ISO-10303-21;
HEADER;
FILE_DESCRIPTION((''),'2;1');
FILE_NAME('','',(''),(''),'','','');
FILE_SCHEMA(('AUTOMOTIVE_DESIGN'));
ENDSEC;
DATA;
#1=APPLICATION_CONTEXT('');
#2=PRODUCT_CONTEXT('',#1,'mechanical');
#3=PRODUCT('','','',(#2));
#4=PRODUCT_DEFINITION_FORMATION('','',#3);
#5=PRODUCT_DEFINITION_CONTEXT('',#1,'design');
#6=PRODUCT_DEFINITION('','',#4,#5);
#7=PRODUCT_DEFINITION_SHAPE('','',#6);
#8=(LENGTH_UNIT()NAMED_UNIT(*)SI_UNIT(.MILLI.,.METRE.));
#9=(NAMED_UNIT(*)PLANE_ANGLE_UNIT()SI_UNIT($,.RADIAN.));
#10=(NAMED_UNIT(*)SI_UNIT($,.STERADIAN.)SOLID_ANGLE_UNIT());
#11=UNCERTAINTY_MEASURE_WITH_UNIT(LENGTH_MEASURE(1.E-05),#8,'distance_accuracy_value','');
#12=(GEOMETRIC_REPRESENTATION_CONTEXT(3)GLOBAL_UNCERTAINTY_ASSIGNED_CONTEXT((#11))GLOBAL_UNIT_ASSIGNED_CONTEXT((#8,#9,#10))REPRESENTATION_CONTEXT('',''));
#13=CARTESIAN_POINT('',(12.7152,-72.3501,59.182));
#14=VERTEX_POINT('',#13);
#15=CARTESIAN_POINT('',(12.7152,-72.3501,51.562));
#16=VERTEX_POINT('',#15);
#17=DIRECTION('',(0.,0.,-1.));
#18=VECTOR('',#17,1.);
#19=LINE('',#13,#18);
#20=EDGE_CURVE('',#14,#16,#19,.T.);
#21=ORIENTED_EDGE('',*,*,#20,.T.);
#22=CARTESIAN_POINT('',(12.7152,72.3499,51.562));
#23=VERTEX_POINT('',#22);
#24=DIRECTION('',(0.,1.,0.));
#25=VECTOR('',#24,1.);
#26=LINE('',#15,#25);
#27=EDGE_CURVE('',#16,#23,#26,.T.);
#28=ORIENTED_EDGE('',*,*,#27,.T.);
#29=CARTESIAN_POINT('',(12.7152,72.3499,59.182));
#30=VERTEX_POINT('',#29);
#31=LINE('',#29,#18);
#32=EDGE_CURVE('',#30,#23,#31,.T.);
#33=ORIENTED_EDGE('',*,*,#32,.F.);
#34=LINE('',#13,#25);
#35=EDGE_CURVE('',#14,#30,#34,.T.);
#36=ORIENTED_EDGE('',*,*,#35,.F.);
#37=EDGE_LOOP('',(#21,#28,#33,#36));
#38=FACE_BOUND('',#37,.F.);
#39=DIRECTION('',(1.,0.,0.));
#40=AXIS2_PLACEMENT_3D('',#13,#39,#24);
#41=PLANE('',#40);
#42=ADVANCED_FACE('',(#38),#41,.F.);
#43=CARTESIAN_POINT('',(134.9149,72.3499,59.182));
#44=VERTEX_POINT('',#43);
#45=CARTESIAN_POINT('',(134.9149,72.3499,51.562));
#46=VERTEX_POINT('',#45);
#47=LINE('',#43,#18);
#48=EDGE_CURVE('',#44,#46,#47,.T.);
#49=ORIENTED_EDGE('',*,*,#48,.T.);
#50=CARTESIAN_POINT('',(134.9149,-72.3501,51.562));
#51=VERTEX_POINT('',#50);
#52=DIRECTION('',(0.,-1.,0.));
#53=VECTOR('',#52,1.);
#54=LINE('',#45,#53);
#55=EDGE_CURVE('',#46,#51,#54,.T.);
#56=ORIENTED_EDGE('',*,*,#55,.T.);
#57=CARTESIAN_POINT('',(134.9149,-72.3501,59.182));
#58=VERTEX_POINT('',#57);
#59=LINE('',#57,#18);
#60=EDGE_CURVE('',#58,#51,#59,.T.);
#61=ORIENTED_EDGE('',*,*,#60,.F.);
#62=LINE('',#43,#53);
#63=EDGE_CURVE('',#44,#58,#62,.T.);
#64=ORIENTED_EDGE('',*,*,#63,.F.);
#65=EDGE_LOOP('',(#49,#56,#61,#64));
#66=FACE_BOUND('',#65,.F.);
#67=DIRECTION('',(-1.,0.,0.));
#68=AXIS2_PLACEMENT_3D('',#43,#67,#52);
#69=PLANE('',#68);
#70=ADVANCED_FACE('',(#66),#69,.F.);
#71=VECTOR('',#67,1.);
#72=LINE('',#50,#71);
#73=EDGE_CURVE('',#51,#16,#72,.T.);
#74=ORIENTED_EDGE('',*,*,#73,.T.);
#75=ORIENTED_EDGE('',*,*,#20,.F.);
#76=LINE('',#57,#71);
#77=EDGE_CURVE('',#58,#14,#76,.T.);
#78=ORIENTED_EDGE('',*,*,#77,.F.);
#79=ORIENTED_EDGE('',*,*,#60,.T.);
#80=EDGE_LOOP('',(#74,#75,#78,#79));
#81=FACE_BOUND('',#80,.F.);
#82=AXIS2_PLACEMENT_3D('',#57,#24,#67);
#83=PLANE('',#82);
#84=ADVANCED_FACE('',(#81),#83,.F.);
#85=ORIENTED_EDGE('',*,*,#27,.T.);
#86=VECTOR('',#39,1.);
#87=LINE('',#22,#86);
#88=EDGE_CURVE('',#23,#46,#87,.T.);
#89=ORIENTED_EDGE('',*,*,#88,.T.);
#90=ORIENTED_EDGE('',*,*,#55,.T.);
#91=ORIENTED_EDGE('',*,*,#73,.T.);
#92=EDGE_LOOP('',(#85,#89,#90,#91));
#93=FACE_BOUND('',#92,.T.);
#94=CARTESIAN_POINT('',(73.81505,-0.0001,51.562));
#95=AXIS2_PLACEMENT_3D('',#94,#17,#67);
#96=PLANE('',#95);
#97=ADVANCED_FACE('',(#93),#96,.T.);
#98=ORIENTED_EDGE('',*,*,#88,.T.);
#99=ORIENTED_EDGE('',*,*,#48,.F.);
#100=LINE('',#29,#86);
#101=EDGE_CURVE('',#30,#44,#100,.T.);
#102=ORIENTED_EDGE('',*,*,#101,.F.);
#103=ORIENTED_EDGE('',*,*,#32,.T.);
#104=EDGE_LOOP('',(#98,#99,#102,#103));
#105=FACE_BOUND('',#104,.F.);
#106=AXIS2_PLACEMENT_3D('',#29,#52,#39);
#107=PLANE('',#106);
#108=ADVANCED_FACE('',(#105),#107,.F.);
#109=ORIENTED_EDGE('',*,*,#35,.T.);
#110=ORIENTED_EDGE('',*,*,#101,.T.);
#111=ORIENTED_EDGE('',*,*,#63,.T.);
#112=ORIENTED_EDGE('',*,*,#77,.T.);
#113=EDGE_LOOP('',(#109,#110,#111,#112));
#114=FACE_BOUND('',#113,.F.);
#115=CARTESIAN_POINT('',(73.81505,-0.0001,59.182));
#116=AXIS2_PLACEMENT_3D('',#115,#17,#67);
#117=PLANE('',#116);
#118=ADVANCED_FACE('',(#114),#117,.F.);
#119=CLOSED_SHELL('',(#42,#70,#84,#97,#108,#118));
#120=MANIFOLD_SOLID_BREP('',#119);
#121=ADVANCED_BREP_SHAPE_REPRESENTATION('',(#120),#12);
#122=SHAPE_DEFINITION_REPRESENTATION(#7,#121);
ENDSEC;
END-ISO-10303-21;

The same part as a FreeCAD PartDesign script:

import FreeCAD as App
import Part
import Sketcher
Q = App.Units.Quantity

doc = App.newDocument("Part")
body = doc.addObject("PartDesign::Body", "Body")

# Sketch on XY plane
sketch1 = doc.addObject("Sketcher::SketchObject", "Sketch")
body.addObject(sketch1)
sketch1.AttachmentSupport = (doc.XY_Plane, [""])
sketch1.MapMode = "FlatFace"
sketch1.AttachmentOffset = App.Placement(App.Vector(0, 0, 2.33 * 25.4), App.Rotation())
sketch1.addGeometry([
    Part.LineSegment(App.Vector(12.7152, 72.3499, 0), App.Vector(134.9149, 72.3499, 0)),
    Part.LineSegment(App.Vector(134.9149, 72.3499, 0), App.Vector(134.9149, -72.3501, 0)),
    Part.LineSegment(App.Vector(134.9149, -72.3501, 0), App.Vector(12.7152, -72.3501, 0)),
    Part.LineSegment(App.Vector(12.7152, -72.3501, 0), App.Vector(12.7152, 72.3499, 0)),
], False)
sketch1.addConstraint([
    Sketcher.Constraint("Coincident", 0, 2, 1, 1),
    Sketcher.Constraint("Coincident", 1, 2, 2, 1),
    Sketcher.Constraint("Coincident", 2, 2, 3, 1),
    Sketcher.Constraint("Coincident", 3, 2, 0, 1),
    Sketcher.Constraint("Horizontal", 0),
    Sketcher.Constraint("Vertical", 1),
    Sketcher.Constraint("Horizontal", 2),
    Sketcher.Constraint("Vertical", 3),
    Sketcher.Constraint("DistanceX", 0, 1, 0, 2, Q("4.811 in")),
    Sketcher.Constraint("DistanceY", 1, 2, 1, 1, 144.7),
    Sketcher.Constraint("DistanceX", -1, 1, 0, 2, Q("5.3116 in")),
    Sketcher.Constraint("DistanceY", -1, 1, 0, 2, 72.35),
])
pad1 = doc.addObject("PartDesign::Pad", "Pad")
body.addObject(pad1)
pad1.Profile = sketch1
pad1.Length = Q("0.3 in")
pad1.Reversed = True

doc.recompute()
